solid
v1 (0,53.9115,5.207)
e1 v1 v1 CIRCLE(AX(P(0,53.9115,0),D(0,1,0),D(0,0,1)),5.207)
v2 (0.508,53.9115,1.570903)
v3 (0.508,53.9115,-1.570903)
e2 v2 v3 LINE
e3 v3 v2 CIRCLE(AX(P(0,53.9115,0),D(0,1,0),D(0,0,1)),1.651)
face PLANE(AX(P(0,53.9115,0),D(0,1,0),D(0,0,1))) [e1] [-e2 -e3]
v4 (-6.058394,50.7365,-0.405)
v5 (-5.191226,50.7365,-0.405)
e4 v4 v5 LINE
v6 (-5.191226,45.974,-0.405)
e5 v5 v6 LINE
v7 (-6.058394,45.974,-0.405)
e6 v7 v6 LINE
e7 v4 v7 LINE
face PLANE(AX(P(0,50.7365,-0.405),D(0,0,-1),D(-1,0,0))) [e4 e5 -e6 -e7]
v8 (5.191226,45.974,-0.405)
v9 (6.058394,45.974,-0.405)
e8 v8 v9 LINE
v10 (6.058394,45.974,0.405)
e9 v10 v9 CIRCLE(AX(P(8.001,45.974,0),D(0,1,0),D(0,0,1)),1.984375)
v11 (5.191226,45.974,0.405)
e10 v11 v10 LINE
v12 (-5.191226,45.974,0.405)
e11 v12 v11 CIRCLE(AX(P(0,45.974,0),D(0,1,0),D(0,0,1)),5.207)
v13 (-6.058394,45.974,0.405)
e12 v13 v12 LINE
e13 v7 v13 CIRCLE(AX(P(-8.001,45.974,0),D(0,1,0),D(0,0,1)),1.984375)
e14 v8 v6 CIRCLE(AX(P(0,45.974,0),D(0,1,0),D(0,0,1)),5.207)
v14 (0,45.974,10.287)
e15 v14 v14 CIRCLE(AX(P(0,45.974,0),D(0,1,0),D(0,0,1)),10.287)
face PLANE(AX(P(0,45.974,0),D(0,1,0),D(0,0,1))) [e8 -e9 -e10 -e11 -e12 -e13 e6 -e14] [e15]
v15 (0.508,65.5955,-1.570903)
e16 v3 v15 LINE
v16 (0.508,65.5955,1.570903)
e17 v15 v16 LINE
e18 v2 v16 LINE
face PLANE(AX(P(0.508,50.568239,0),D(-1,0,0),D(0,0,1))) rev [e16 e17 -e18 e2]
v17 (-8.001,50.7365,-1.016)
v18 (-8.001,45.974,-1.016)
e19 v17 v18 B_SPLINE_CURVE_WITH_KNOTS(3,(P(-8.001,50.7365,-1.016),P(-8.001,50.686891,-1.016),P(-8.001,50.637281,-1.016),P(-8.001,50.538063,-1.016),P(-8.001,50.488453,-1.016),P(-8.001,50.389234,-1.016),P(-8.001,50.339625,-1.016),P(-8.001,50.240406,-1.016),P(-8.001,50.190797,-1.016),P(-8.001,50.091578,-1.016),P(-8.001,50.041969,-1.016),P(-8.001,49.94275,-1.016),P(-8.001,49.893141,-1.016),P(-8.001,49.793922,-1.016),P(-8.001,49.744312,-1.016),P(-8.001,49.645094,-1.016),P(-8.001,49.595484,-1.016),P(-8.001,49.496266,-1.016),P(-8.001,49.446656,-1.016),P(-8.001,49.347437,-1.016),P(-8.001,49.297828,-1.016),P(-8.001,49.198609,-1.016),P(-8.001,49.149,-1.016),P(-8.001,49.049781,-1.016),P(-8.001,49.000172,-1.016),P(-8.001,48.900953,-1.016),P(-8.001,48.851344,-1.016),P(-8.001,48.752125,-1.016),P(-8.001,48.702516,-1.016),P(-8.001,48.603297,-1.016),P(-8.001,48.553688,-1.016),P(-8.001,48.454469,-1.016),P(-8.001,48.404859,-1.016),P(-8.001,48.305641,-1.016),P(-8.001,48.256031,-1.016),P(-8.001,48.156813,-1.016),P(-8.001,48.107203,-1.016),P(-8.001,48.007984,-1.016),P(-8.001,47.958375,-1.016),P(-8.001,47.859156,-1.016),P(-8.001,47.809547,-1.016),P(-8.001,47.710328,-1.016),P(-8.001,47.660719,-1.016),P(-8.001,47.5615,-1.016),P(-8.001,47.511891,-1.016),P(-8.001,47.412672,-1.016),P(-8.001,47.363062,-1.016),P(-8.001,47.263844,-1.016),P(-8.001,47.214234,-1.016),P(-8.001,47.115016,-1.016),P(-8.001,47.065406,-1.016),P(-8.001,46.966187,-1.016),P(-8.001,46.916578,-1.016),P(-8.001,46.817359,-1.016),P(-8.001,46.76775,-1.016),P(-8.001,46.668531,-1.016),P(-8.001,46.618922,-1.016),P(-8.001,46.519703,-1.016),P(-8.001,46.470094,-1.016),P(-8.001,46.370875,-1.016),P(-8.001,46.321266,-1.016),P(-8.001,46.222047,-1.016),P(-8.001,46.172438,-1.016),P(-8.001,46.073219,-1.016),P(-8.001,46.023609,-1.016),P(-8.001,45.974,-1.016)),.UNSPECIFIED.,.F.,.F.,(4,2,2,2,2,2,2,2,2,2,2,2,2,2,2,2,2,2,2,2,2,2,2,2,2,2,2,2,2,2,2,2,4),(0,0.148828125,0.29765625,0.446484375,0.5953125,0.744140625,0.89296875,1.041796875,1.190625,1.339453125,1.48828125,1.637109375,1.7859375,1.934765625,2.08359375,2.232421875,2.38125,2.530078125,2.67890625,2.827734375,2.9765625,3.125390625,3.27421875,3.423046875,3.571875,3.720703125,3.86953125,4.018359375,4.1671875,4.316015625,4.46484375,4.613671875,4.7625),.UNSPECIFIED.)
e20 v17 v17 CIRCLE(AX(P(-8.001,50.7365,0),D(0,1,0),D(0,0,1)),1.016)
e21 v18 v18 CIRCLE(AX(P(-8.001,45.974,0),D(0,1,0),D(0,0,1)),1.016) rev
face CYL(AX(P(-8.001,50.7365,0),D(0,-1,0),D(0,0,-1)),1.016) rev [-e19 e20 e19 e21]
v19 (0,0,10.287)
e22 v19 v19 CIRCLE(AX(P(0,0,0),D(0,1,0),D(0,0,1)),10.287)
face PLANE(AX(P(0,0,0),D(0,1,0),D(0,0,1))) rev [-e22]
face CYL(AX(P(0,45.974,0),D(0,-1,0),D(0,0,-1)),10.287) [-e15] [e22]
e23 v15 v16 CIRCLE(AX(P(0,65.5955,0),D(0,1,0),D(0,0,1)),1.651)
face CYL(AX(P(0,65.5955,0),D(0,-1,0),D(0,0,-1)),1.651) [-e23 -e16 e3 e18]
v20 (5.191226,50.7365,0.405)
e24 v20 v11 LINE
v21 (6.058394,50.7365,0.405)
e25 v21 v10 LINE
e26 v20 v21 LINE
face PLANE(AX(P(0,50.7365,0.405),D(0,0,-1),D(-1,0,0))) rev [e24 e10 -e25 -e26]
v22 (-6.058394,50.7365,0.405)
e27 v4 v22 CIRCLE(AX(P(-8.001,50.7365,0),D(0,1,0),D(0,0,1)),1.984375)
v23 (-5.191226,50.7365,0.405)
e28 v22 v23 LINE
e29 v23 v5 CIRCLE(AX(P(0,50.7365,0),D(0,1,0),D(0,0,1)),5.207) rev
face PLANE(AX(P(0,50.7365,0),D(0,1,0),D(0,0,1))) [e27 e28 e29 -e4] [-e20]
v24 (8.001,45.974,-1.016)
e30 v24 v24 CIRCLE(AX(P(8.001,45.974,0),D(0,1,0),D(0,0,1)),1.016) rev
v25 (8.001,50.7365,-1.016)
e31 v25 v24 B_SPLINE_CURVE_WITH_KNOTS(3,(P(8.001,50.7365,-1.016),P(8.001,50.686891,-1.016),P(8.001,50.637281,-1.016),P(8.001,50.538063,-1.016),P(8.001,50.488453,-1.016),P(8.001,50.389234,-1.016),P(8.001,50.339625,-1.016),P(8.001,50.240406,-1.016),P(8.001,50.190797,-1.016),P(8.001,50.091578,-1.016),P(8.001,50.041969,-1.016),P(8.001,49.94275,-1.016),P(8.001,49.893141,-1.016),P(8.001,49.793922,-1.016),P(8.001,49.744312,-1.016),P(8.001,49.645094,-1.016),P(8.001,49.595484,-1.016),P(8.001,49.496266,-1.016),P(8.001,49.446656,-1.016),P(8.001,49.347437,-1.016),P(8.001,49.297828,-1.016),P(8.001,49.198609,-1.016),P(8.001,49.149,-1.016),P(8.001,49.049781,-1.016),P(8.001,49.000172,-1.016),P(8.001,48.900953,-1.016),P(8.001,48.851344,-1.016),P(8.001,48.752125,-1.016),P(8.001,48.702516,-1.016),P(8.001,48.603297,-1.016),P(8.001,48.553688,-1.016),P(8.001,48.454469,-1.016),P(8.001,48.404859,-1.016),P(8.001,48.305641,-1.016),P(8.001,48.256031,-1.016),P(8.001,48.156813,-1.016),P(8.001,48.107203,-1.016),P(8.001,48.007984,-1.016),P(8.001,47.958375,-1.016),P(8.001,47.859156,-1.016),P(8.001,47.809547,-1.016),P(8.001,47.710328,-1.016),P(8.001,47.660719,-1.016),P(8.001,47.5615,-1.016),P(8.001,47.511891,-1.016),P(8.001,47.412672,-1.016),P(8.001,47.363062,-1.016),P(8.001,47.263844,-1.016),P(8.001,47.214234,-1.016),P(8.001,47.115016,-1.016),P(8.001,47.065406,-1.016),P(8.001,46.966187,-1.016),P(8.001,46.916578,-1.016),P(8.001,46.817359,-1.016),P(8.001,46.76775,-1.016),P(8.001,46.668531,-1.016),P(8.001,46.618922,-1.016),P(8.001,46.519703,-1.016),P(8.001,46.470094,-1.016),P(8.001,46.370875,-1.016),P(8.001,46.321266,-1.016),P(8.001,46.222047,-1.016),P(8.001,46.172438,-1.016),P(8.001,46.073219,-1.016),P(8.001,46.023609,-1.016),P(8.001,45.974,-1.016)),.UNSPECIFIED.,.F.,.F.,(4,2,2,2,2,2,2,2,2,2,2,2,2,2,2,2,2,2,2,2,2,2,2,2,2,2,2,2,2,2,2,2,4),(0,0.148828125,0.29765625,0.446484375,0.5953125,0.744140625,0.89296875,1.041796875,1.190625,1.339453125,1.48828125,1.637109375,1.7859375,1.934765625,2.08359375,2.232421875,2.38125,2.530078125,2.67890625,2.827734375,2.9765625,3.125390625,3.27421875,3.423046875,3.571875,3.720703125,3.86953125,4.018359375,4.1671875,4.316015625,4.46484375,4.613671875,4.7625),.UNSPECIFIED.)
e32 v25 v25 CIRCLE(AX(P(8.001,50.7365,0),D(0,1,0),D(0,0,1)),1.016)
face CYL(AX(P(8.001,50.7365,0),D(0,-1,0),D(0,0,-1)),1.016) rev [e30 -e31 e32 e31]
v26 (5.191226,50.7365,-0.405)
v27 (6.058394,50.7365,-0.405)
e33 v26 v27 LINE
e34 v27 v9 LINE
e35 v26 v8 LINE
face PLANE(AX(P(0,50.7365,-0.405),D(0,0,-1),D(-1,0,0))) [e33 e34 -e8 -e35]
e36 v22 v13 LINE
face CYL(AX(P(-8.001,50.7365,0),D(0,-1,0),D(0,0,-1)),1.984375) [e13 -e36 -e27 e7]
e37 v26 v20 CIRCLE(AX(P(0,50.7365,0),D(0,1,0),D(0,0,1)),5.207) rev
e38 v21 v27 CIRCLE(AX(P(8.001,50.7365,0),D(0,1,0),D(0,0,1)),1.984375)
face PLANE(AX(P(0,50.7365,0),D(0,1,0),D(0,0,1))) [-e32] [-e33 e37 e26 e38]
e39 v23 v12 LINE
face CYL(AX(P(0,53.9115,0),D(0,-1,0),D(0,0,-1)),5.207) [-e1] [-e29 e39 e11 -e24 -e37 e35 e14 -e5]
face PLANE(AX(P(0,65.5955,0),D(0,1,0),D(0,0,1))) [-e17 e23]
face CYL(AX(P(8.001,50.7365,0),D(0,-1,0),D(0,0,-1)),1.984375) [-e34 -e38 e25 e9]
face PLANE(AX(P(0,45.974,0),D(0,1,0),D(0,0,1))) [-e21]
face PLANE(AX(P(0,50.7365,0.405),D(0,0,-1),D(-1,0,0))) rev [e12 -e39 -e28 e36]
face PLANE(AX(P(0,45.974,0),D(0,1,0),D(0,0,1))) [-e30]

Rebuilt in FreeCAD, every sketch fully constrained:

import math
import FreeCAD as App
import Part
import Sketcher
Q = App.Units.Quantity

doc = App.newDocument("Part")
body = doc.addObject("PartDesign::Body", "Body")

sketch1 = body.newObject("Sketcher::SketchObject", "Sketch")
sketch1.AttachmentSupport = (doc.getObject("XZ_Plane"), [""])
sketch1.MapMode = "FlatFace"
sketch1.addGeometry(Part.Circle(App.Vector(0, 0, 0), App.Vector(0, 0, 1), 10), False)
sketch1.addConstraint(Sketcher.Constraint("Coincident", 0, 3, -1, 1))
sketch1.addConstraint(Sketcher.Constraint("Diameter", 0, Q("0.81 in")))
pad1 = body.newObject("PartDesign::Pad", "Pad")
pad1.Profile = sketch1
pad1.Length = Q("1.81 in")
pad1.Reversed = True

sketch2 = body.newObject("Sketcher::SketchObject", "Sketch001")
sketch2.AttachmentSupport = (doc.getObject("XZ_Plane"), [""])
sketch2.MapMode = "FlatFace"
sketch2.AttachmentOffset = App.Placement(App.Vector(0, 0, -1.81 * 25.4), App.Rotation())
sketch2.addGeometry(Part.Circle(App.Vector(0, 0, 0), App.Vector(0, 0, 1), 5), False)
sketch2.addConstraint(Sketcher.Constraint("Coincident", 0, 3, -1, 1))
sketch2.addConstraint(Sketcher.Constraint("Diameter", 0, Q("0.41 in")))
pad2 = body.newObject("PartDesign::Pad", "Pad001")
pad2.Profile = sketch2
pad2.Length = Q("0.3125 in")
pad2.Reversed = True

sketch3 = body.newObject("Sketcher::SketchObject", "Sketch002")
sketch3.AttachmentSupport = (doc.getObject("XZ_Plane"), [""])
sketch3.MapMode = "FlatFace"
sketch3.AttachmentOffset = App.Placement(App.Vector(0, 0, -2.1225 * 25.4), App.Rotation())
sketch3.addGeometry(Part.Circle(App.Vector(0, 0, 0), App.Vector(0, 0, 1), 1.7), False)
sketch3.addConstraint(Sketcher.Constraint("Coincident", 0, 3, -1, 1))
sketch3.addConstraint(Sketcher.Constraint("Diameter", 0, Q("0.13 in")))
pad3 = body.newObject("PartDesign::Pad", "Pad002")
pad3.Profile = sketch3
pad3.Length = Q("0.46 in")
pad3.Reversed = True

sketch4 = body.newObject("Sketcher::SketchObject", "Sketch003")
sketch4.AttachmentSupport = (doc.getObject("XZ_Plane"), [""])
sketch4.MapMode = "FlatFace"
sketch4.AttachmentOffset = App.Placement(App.Vector(0, 0, -1.81 * 25.4), App.Rotation())
sketch4.addGeometry(Part.LineSegment(App.Vector(-6.1, 0.4, 0), App.Vector(6.1, 0.4, 0)), False)
sketch4.addGeometry(Part.ArcOfCircle(Part.Circle(App.Vector(8, 0, 0), App.Vector(0, 0, 1), 2), math.radians(-168), math.radians(168)), False)
sketch4.addGeometry(Part.LineSegment(App.Vector(6.1, -0.4, 0), App.Vector(-6.1, -0.4, 0)), False)
sketch4.addGeometry(Part.ArcOfCircle(Part.Circle(App.Vector(-8, 0, 0), App.Vector(0, 0, 1), 2), math.radians(12), math.radians(348)), False)
sketch4.addGeometry(Part.Circle(App.Vector(-8, 0, 0), App.Vector(0, 0, 1), 1), False)
sketch4.addGeometry(Part.Circle(App.Vector(8, 0, 0), App.Vector(0, 0, 1), 1), False)
sketch4.addConstraint(Sketcher.Constraint("Coincident", 0, 2, 1, 2))
sketch4.addConstraint(Sketcher.Constraint("Coincident", 1, 1, 2, 1))
sketch4.addConstraint(Sketcher.Constraint("Coincident", 2, 2, 3, 2))
sketch4.addConstraint(Sketcher.Constraint("Coincident", 3, 1, 0, 1))
sketch4.addConstraint(Sketcher.Constraint("Horizontal", 0))
sketch4.addConstraint(Sketcher.Constraint("Horizontal", 2))
sketch4.addConstraint(Sketcher.Constraint("Coincident", 4, 3, 3, 3))
sketch4.addConstraint(Sketcher.Constraint("Coincident", 5, 3, 1, 3))
sketch4.addConstraint(Sketcher.Constraint("Equal", 1, 3))
sketch4.addConstraint(Sketcher.Constraint("Equal", 4, 5))
sketch4.addConstraint(Sketcher.Constraint("Symmetric", 1, 3, 3, 3, -1, 1))
sketch4.addConstraint(Sketcher.Constraint("Symmetric", 0, 2, 1, 1, -1))
sketch4.addConstraint(Sketcher.Constraint("Diameter", 4, Q("0.08 in")))
sketch4.addConstraint(Sketcher.Constraint("Radius", 1, Q("0.078125 in")))
sketch4.addConstraint(Sketcher.Constraint("DistanceX", 3, 3, 1, 3, Q("0.63 in")))
sketch4.addConstraint(Sketcher.Constraint("DistanceY", -1, 1, 0, 2, Q("0.405 mm")))
pad4 = body.newObject("PartDesign::Pad", "Pad003")
pad4.Profile = sketch4
pad4.Length = Q("0.1875 in")
pad4.Reversed = True

sketch5 = body.newObject("Sketcher::SketchObject", "Sketch004")
sketch5.AttachmentSupport = (doc.getObject("XZ_Plane"), [""])
sketch5.MapMode = "FlatFace"
sketch5.AttachmentOffset = App.Placement(App.Vector(0, 0, -2.5825 * 25.4), App.Rotation())
sketch5.addGeometry(Part.LineSegment(App.Vector(1, -44, 0), App.Vector(1, 44, 0)), False)
sketch5.addGeometry(Part.LineSegment(App.Vector(1, 44, 0), App.Vector(85, 44, 0)), False)
sketch5.addGeometry(Part.LineSegment(App.Vector(85, 44, 0), App.Vector(85, -44, 0)), False)
sketch5.addGeometry(Part.LineSegment(App.Vector(85, -44, 0), App.Vector(1, -44, 0)), False)
sketch5.addConstraint(Sketcher.Constraint("Coincident", 0, 2, 1, 1))
sketch5.addConstraint(Sketcher.Constraint("Coincident", 1, 2, 2, 1))
sketch5.addConstraint(Sketcher.Constraint("Coincident", 2, 2, 3, 1))
sketch5.addConstraint(Sketcher.Constraint("Coincident", 3, 2, 0, 1))
sketch5.addConstraint(Sketcher.Constraint("Vertical", 0))
sketch5.addConstraint(Sketcher.Constraint("Horizontal", 1))
sketch5.addConstraint(Sketcher.Constraint("Vertical", 2))
sketch5.addConstraint(Sketcher.Constraint("Horizontal", 3))
sketch5.addConstraint(Sketcher.Constraint("DistanceX", -1, 1, 0, 2, Q("0.02 in")))
sketch5.addConstraint(Sketcher.Constraint("DistanceX", 1, 1, 1, 2, Q("3.3126999 in")))
sketch5.addConstraint(Sketcher.Constraint("DistanceY", 0, 1, 0, 2, Q("87.284384 mm")))
sketch5.addConstraint(Sketcher.Constraint("DistanceY", -1, 1, 0, 2, Q("43.642192 mm")))
pocket1 = body.newObject("PartDesign::Pocket", "Pocket")
pocket1.Profile = sketch5
pocket1.Length = Q("0.46 in")
pocket1.Reversed = True

doc.recompute()
